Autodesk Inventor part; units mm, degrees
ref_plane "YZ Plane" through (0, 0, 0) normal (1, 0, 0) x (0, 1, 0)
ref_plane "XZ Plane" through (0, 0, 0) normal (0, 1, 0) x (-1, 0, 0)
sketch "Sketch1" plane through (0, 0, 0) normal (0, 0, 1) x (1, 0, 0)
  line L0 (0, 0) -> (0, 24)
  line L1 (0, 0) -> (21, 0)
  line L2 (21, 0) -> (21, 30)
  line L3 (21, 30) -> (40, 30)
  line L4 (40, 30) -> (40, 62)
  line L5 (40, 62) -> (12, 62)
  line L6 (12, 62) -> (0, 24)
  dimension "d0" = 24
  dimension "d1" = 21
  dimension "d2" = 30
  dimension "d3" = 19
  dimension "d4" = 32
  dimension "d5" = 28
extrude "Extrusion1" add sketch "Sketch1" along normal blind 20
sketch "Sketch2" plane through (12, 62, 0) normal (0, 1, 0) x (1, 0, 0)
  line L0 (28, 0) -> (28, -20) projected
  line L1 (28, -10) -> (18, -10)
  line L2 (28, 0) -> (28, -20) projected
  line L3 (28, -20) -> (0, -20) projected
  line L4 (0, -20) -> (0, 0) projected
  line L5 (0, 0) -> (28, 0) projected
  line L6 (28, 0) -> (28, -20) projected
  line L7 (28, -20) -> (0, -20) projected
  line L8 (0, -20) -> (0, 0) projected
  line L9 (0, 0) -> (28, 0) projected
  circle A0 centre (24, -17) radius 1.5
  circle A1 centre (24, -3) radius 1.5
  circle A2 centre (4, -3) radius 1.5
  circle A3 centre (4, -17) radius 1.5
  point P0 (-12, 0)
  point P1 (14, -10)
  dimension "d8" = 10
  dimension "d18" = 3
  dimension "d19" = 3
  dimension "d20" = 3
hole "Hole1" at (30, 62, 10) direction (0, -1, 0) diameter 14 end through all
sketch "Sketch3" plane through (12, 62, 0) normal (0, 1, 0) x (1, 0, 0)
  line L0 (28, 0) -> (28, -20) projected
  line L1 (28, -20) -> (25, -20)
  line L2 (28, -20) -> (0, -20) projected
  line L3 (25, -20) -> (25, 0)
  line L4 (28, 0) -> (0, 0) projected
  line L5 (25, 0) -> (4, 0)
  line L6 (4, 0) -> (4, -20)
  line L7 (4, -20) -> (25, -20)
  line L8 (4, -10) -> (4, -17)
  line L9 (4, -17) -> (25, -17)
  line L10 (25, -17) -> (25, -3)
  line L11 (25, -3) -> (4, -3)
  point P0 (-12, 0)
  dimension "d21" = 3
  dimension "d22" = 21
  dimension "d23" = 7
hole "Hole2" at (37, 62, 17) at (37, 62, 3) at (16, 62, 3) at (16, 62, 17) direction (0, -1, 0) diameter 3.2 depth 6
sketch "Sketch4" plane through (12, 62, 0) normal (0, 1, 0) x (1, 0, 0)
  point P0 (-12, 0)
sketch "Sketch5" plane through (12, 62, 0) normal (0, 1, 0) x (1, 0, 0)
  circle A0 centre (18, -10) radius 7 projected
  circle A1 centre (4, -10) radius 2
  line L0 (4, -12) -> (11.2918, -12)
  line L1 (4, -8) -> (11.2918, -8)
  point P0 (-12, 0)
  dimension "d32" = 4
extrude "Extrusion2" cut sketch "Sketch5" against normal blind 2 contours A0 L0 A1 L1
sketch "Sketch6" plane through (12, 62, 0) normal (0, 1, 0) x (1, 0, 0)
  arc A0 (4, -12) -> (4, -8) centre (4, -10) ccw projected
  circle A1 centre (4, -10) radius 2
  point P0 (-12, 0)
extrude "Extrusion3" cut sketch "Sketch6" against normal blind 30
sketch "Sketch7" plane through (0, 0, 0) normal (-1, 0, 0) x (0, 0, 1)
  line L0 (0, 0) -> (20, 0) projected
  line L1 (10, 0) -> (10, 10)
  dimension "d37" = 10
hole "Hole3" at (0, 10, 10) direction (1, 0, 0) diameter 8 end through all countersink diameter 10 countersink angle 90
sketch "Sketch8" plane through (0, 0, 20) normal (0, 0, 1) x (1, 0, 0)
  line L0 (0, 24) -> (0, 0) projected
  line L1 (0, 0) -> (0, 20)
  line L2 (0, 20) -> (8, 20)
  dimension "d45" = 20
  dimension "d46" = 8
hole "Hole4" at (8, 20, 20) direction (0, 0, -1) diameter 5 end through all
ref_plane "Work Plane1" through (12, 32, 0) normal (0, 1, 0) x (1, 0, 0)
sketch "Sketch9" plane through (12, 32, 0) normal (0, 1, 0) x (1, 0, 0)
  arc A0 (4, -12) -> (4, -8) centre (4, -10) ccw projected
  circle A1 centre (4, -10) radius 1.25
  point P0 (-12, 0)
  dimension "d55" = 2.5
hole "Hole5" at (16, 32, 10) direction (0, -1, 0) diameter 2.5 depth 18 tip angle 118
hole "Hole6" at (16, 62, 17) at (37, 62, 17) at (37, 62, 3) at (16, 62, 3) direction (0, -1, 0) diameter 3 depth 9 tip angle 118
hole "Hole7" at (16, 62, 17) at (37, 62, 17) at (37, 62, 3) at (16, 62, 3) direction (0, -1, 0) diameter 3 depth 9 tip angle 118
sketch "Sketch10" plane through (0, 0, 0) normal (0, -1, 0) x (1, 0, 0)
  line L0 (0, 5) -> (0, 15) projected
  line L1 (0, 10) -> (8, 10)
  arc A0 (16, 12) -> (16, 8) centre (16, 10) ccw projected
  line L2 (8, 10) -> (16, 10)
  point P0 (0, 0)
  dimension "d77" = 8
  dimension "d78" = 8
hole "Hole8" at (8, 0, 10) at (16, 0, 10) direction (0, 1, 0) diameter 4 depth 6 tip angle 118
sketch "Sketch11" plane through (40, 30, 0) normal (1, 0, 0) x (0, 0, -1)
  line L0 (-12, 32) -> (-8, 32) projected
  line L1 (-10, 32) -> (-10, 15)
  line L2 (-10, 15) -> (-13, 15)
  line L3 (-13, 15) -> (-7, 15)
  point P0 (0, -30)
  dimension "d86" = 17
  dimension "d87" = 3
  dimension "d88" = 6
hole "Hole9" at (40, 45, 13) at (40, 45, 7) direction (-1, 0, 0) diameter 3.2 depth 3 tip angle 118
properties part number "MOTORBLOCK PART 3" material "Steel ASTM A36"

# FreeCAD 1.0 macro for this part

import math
import FreeCAD as App
import Part
import Sketcher
from FreeCAD import Vector
Q = App.Units.Quantity

doc = App.newDocument("Part")
body = doc.addObject("PartDesign::Body", "Body")

sketch1 = doc.addObject("Sketcher::SketchObject", "Sketch")
body.addObject(sketch1)
sketch1.AttachmentSupport = (doc.XY_Plane, [""])
sketch1.MapMode = "FlatFace"
sketch1.addGeometry(Part.LineSegment(Vector(0, 24, 0), Vector(0, 0, 0)), False)
sketch1.addGeometry(Part.LineSegment(Vector(0, 0, 0), Vector(21, 0, 0)), False)
sketch1.addGeometry(Part.LineSegment(Vector(21, 0, 0), Vector(21, 30, 0)), False)
sketch1.addGeometry(Part.LineSegment(Vector(21, 30, 0), Vector(40, 30, 0)), False)
sketch1.addGeometry(Part.LineSegment(Vector(40, 30, 0), Vector(40, 62, 0)), False)
sketch1.addGeometry(Part.LineSegment(Vector(40, 62, 0), Vector(12, 62, 0)), False)
sketch1.addGeometry(Part.LineSegment(Vector(12, 62, 0), Vector(0, 24, 0)), False)
sketch1.addConstraint(Sketcher.Constraint("Coincident", 0, 2, 1, 1))
sketch1.addConstraint(Sketcher.Constraint("Coincident", 1, 2, 2, 1))
sketch1.addConstraint(Sketcher.Constraint("Coincident", 2, 2, 3, 1))
sketch1.addConstraint(Sketcher.Constraint("Coincident", 3, 2, 4, 1))
sketch1.addConstraint(Sketcher.Constraint("Coincident", 4, 2, 5, 1))
sketch1.addConstraint(Sketcher.Constraint("Coincident", 5, 2, 6, 1))
sketch1.addConstraint(Sketcher.Constraint("Coincident", 6, 2, 0, 1))
sketch1.addConstraint(Sketcher.Constraint("Vertical", 0))
sketch1.addConstraint(Sketcher.Constraint("Horizontal", 1))
sketch1.addConstraint(Sketcher.Constraint("Vertical", 2))
sketch1.addConstraint(Sketcher.Constraint("Horizontal", 3))
sketch1.addConstraint(Sketcher.Constraint("Vertical", 4))
sketch1.addConstraint(Sketcher.Constraint("Horizontal", 5))
sketch1.addConstraint(Sketcher.Constraint("Coincident", 0, 2, -1, 1))
sketch1.addConstraint(Sketcher.Constraint("DistanceX", 1, 1, 1, 2, Q("21 mm")))
sketch1.addConstraint(Sketcher.Constraint("DistanceX", 3, 1, 3, 2, Q("19 mm")))
sketch1.addConstraint(Sketcher.Constraint("DistanceX", 5, 2, 5, 1, Q("28 mm")))
sketch1.addConstraint(Sketcher.Constraint("DistanceY", 0, 2, 0, 1, Q("24 mm")))
sketch1.addConstraint(Sketcher.Constraint("DistanceY", 2, 1, 2, 2, Q("30 mm")))
sketch1.addConstraint(Sketcher.Constraint("DistanceY", 4, 1, 4, 2, Q("32 mm")))
pad1 = doc.addObject("PartDesign::Pad", "Pad")
body.addObject(pad1)
pad1.Profile = sketch1
pad1.Length = 20

sketch2 = doc.addObject("Sketcher::SketchObject", "Sketch001")
body.addObject(sketch2)
sketch2.AttachmentSupport = (doc.XZ_Plane, [""])
sketch2.MapMode = "FlatFace"
sketch2.AttachmentOffset = App.Placement(Vector(0, 0, -62), App.Rotation())
sketch2.addGeometry(Part.Circle(Vector(30, 10, 0), Vector(0, 0, 1), 7), False)
sketch2.addConstraint(Sketcher.Constraint("Diameter", 0, Q("14 mm")))
sketch2.addConstraint(Sketcher.Constraint("DistanceX", -1, 1, 0, 3, Q("30 mm")))
sketch2.addConstraint(Sketcher.Constraint("DistanceY", -1, 1, 0, 3, Q("10 mm")))
doc.recompute()
hole = doc.addObject("PartDesign::Hole", "Hole")
body.addObject(hole)
hole.Profile = sketch2
hole.ThreadType = "None"
hole.Diameter = 14
hole.DepthType = "ThroughAll"
hole.Reversed = True

sketch3 = doc.addObject("Sketcher::SketchObject", "Sketch002")
body.addObject(sketch3)
sketch3.AttachmentSupport = (doc.XZ_Plane, [""])
sketch3.MapMode = "FlatFace"
sketch3.AttachmentOffset = App.Placement(Vector(0, 0, -62), App.Rotation())
sketch3.addGeometry(Part.Circle(Vector(37, 17, 0), Vector(0, 0, 1), 1.6), False)
sketch3.addGeometry(Part.Circle(Vector(37, 3, 0), Vector(0, 0, 1), 1.6), False)
sketch3.addGeometry(Part.Circle(Vector(16, 3, 0), Vector(0, 0, 1), 1.6), False)
sketch3.addGeometry(Part.Circle(Vector(16, 17, 0), Vector(0, 0, 1), 1.6), False)
sketch3.addConstraint(Sketcher.Constraint("Equal", 0, 1))
sketch3.addConstraint(Sketcher.Constraint("Equal", 1, 2))
sketch3.addConstraint(Sketcher.Constraint("Equal", 2, 3))
sketch3.addConstraint(Sketcher.Constraint("Horizontal", 1, 3, 2, 3))
sketch3.addConstraint(Sketcher.Constraint("Horizontal", 0, 3, 3, 3))
sketch3.addConstraint(Sketcher.Constraint("Vertical", 0, 3, 1, 3))
sketch3.addConstraint(Sketcher.Constraint("Vertical", 2, 3, 3, 3))
sketch3.addConstraint(Sketcher.Constraint("Diameter", 0, Q("3.2 mm")))
sketch3.addConstraint(Sketcher.Constraint("DistanceX", -1, 1, 0, 3, Q("37 mm")))
sketch3.addConstraint(Sketcher.Constraint("DistanceY", -1, 1, 0, 3, Q("17 mm")))
sketch3.addConstraint(Sketcher.Constraint("DistanceY", -1, 1, 1, 3, Q("3 mm")))
sketch3.addConstraint(Sketcher.Constraint("DistanceX", -1, 1, 2, 3, Q("16 mm")))
doc.recompute()
hole2 = doc.addObject("PartDesign::Hole", "Hole001")
body.addObject(hole2)
hole2.Profile = sketch3
hole2.ThreadType = "None"
hole2.Diameter = 3.2
hole2.DepthType = "Dimension"
hole2.Depth = 6
hole2.DrillPoint = "Flat"
hole2.Reversed = True

sketch4 = doc.addObject("Sketcher::SketchObject", "Sketch003")
body.addObject(sketch4)
sketch4.AttachmentSupport = (doc.XZ_Plane, [""])
sketch4.MapMode = "FlatFace"
sketch4.AttachmentOffset = App.Placement(Vector(0, 0, -62), App.Rotation())
sketch4.addGeometry(Part.ArcOfCircle(Part.Circle(Vector(30, 10, 0), Vector(0, 0, 1), 7), math.radians(163), math.radians(197)), False)
sketch4.addGeometry(Part.LineSegment(Vector(23.3, 8, 0), Vector(16, 8, 0)), False)
sketch4.addGeometry(Part.ArcOfCircle(Part.Circle(Vector(16, 10, 0), Vector(0, 0, 1), 2), math.radians(-90), math.radians(90)), False)
sketch4.addGeometry(Part.LineSegment(Vector(16, 12, 0), Vector(23.3, 12, 0)), False)
sketch4.addConstraint(Sketcher.Constraint("Coincident", 0, 2, 1, 1))
sketch4.addConstraint(Sketcher.Constraint("Tangent", 1, 2, 2, 1))
sketch4.addConstraint(Sketcher.Constraint("Tangent", 2, 2, 3, 1))
sketch4.addConstraint(Sketcher.Constraint("Coincident", 3, 2, 0, 1))
sketch4.addConstraint(Sketcher.Constraint("Horizontal", 1))
sketch4.addConstraint(Sketcher.Constraint("Horizontal", 3))
sketch4.addConstraint(Sketcher.Constraint("Horizontal", 0, 3, 2, 3))
sketch4.addConstraint(Sketcher.Constraint("Radius", 2, Q("2 mm")))
sketch4.addConstraint(Sketcher.Constraint("Radius", 0, Q("7 mm")))
sketch4.addConstraint(Sketcher.Constraint("DistanceX", -1, 1, 0, 3, Q("30 mm")))
sketch4.addConstraint(Sketcher.Constraint("DistanceY", -1, 1, 0, 3, Q("10 mm")))
sketch4.addConstraint(Sketcher.Constraint("DistanceX", -1, 1, 2, 3, Q("16 mm")))
pocket1 = doc.addObject("PartDesign::Pocket", "Pocket")
body.addObject(pocket1)
pocket1.Profile = sketch4
pocket1.Length = 2
pocket1.Reversed = True

sketch5 = doc.addObject("Sketcher::SketchObject", "Sketch004")
body.addObject(sketch5)
sketch5.AttachmentSupport = (doc.XZ_Plane, [""])
sketch5.MapMode = "FlatFace"
sketch5.AttachmentOffset = App.Placement(Vector(0, 0, -62), App.Rotation())
sketch5.addGeometry(Part.Circle(Vector(16, 10, 0), Vector(0, 0, 1), 2), False)
sketch5.addConstraint(Sketcher.Constraint("Diameter", 0, Q("4 mm")))
sketch5.addConstraint(Sketcher.Constraint("DistanceX", -1, 1, 0, 3, Q("16 mm")))
sketch5.addConstraint(Sketcher.Constraint("DistanceY", -1, 1, 0, 3, Q("10 mm")))
pocket2 = doc.addObject("PartDesign::Pocket", "Pocket001")
body.addObject(pocket2)
pocket2.Profile = sketch5
pocket2.Length = 30
pocket2.Reversed = True

sketch6 = doc.addObject("Sketcher::SketchObject", "Sketch005")
body.addObject(sketch6)
sketch6.AttachmentSupport = (doc.YZ_Plane, [""])
sketch6.MapMode = "FlatFace"
sketch6.addGeometry(Part.Circle(Vector(10, 10, 0), Vector(0, 0, 1), 4), False)
sketch6.addConstraint(Sketcher.Constraint("Diameter", 0, Q("8 mm")))
sketch6.addConstraint(Sketcher.Constraint("DistanceX", -1, 1, 0, 3, Q("10 mm")))
sketch6.addConstraint(Sketcher.Constraint("DistanceY", -1, 1, 0, 3, Q("10 mm")))
doc.recompute()
hole3 = doc.addObject("PartDesign::Hole", "Hole002")
body.addObject(hole3)
hole3.Profile = sketch6
hole3.ThreadType = "None"
hole3.Diameter = 8
hole3.DepthType = "ThroughAll"
hole3.HoleCutType = "Countersink"
hole3.HoleCutDiameter = 10
hole3.HoleCutCountersinkAngle = 90
hole3.Reversed = True

sketch7 = doc.addObject("Sketcher::SketchObject", "Sketch006")
body.addObject(sketch7)
sketch7.AttachmentSupport = (doc.XY_Plane, [""])
sketch7.MapMode = "FlatFace"
sketch7.AttachmentOffset = App.Placement(Vector(0, 0, 20), App.Rotation())
sketch7.addGeometry(Part.Circle(Vector(8, 20, 0), Vector(0, 0, 1), 2.5), False)
sketch7.addConstraint(Sketcher.Constraint("Diameter", 0, Q("5 mm")))
sketch7.addConstraint(Sketcher.Constraint("DistanceX", -1, 1, 0, 3, Q("8 mm")))
sketch7.addConstraint(Sketcher.Constraint("DistanceY", -1, 1, 0, 3, Q("20 mm")))
doc.recompute()
hole4 = doc.addObject("PartDesign::Hole", "Hole003")
body.addObject(hole4)
hole4.Profile = sketch7
hole4.ThreadType = "None"
hole4.Diameter = 5
hole4.DepthType = "ThroughAll"

sketch8 = doc.addObject("Sketcher::SketchObject", "Sketch007")
body.addObject(sketch8)
sketch8.AttachmentSupport = (doc.XZ_Plane, [""])
sketch8.MapMode = "FlatFace"
sketch8.AttachmentOffset = App.Placement(Vector(0, 0, -32), App.Rotation())
sketch8.addGeometry(Part.Circle(Vector(16, 10, 0), Vector(0, 0, 1), 1.2), False)
sketch8.addConstraint(Sketcher.Constraint("Diameter", 0, Q("2.5 mm")))
sketch8.addConstraint(Sketcher.Constraint("DistanceX", -1, 1, 0, 3, Q("16 mm")))
sketch8.addConstraint(Sketcher.Constraint("DistanceY", -1, 1, 0, 3, Q("10 mm")))
doc.recompute()
hole5 = doc.addObject("PartDesign::Hole", "Hole004")
body.addObject(hole5)
hole5.Profile = sketch8
hole5.ThreadType = "None"
hole5.Diameter = 2.5
hole5.DepthType = "Dimension"
hole5.Depth = 18
hole5.DrillPoint = "Angled"
hole5.DrillPointAngle = 118
hole5.Reversed = True

sketch9 = doc.addObject("Sketcher::SketchObject", "Sketch008")
body.addObject(sketch9)
sketch9.AttachmentSupport = (doc.XZ_Plane, [""])
sketch9.MapMode = "FlatFace"
sketch9.AttachmentOffset = App.Placement(Vector(0, 0, -62), App.Rotation())
sketch9.addGeometry(Part.Circle(Vector(16, 17, 0), Vector(0, 0, 1), 1.5), False)
sketch9.addGeometry(Part.Circle(Vector(37, 17, 0), Vector(0, 0, 1), 1.5), False)
sketch9.addGeometry(Part.Circle(Vector(37, 3, 0), Vector(0, 0, 1), 1.5), False)
sketch9.addGeometry(Part.Circle(Vector(16, 3, 0), Vector(0, 0, 1), 1.5), False)
sketch9.addConstraint(Sketcher.Constraint("Equal", 0, 1))
sketch9.addConstraint(Sketcher.Constraint("Equal", 1, 2))
sketch9.addConstraint(Sketcher.Constraint("Equal", 2, 3))
sketch9.addConstraint(Sketcher.Constraint("Horizontal", 0, 3, 1, 3))
sketch9.addConstraint(Sketcher.Constraint("Horizontal", 2, 3, 3, 3))
sketch9.addConstraint(Sketcher.Constraint("Vertical", 1, 3, 2, 3))
sketch9.addConstraint(Sketcher.Constraint("Vertical", 0, 3, 3, 3))
sketch9.addConstraint(Sketcher.Constraint("Diameter", 0, Q("3 mm")))
sketch9.addConstraint(Sketcher.Constraint("DistanceX", -1, 1, 0, 3, Q("16 mm")))
sketch9.addConstraint(Sketcher.Constraint("DistanceY", -1, 1, 0, 3, Q("17 mm")))
sketch9.addConstraint(Sketcher.Constraint("DistanceX", -1, 1, 1, 3, Q("37 mm")))
sketch9.addConstraint(Sketcher.Constraint("DistanceY", -1, 1, 2, 3, Q("3 mm")))
doc.recompute()
hole6 = doc.addObject("PartDesign::Hole", "Hole005")
body.addObject(hole6)
hole6.Profile = sketch9
hole6.ThreadType = "None"
hole6.Diameter = 3
hole6.DepthType = "Dimension"
hole6.Depth = 9
hole6.DrillPoint = "Angled"
hole6.DrillPointAngle = 118
hole6.Reversed = True

sketch10 = doc.addObject("Sketcher::SketchObject", "Sketch009")
body.addObject(sketch10)
sketch10.AttachmentSupport = (doc.XZ_Plane, [""])
sketch10.MapMode = "FlatFace"
sketch10.AttachmentOffset = App.Placement(Vector(0, 0, -62), App.Rotation())
sketch10.addGeometry(Part.Circle(Vector(16, 17, 0), Vector(0, 0, 1), 1.5), False)
sketch10.addGeometry(Part.Circle(Vector(37, 17, 0), Vector(0, 0, 1), 1.5), False)
sketch10.addGeometry(Part.Circle(Vector(37, 3, 0), Vector(0, 0, 1), 1.5), False)
sketch10.addGeometry(Part.Circle(Vector(16, 3, 0), Vector(0, 0, 1), 1.5), False)
sketch10.addConstraint(Sketcher.Constraint("Equal", 0, 1))
sketch10.addConstraint(Sketcher.Constraint("Equal", 1, 2))
sketch10.addConstraint(Sketcher.Constraint("Equal", 2, 3))
sketch10.addConstraint(Sketcher.Constraint("Horizontal", 0, 3, 1, 3))
sketch10.addConstraint(Sketcher.Constraint("Horizontal", 2, 3, 3, 3))
sketch10.addConstraint(Sketcher.Constraint("Vertical", 1, 3, 2, 3))
sketch10.addConstraint(Sketcher.Constraint("Vertical", 0, 3, 3, 3))
sketch10.addConstraint(Sketcher.Constraint("Diameter", 0, Q("3 mm")))
sketch10.addConstraint(Sketcher.Constraint("DistanceX", -1, 1, 0, 3, Q("16 mm")))
sketch10.addConstraint(Sketcher.Constraint("DistanceY", -1, 1, 0, 3, Q("17 mm")))
sketch10.addConstraint(Sketcher.Constraint("DistanceX", -1, 1, 1, 3, Q("37 mm")))
sketch10.addConstraint(Sketcher.Constraint("DistanceY", -1, 1, 2, 3, Q("3 mm")))
doc.recompute()
hole7 = doc.addObject("PartDesign::Hole", "Hole006")
body.addObject(hole7)
hole7.Profile = sketch10
hole7.ThreadType = "None"
hole7.Diameter = 3
hole7.DepthType = "Dimension"
hole7.Depth = 9
hole7.DrillPoint = "Angled"
hole7.DrillPointAngle = 118
hole7.Reversed = True

sketch11 = doc.addObject("Sketcher::SketchObject", "Sketch010")
body.addObject(sketch11)
sketch11.AttachmentSupport = (doc.XZ_Plane, [""])
sketch11.MapMode = "FlatFace"
sketch11.addGeometry(Part.Circle(Vector(8, 10, 0), Vector(0, 0, 1), 2), False)
sketch11.addGeometry(Part.Circle(Vector(16, 10, 0), Vector(0, 0, 1), 2), False)
sketch11.addConstraint(Sketcher.Constraint("Equal", 0, 1))
sketch11.addConstraint(Sketcher.Constraint("Horizontal", 0, 3, 1, 3))
sketch11.addConstraint(Sketcher.Constraint("Diameter", 0, Q("4 mm")))
sketch11.addConstraint(Sketcher.Constraint("DistanceX", -1, 1, 0, 3, Q("8 mm")))
sketch11.addConstraint(Sketcher.Constraint("DistanceY", -1, 1, 0, 3, Q("10 mm")))
sketch11.addConstraint(Sketcher.Constraint("DistanceX", -1, 1, 1, 3, Q("16 mm")))
doc.recompute()
hole8 = doc.addObject("PartDesign::Hole", "Hole007")
body.addObject(hole8)
hole8.Profile = sketch11
hole8.ThreadType = "None"
hole8.Diameter = 4
hole8.DepthType = "Dimension"
hole8.Depth = 6
hole8.DrillPoint = "Angled"
hole8.DrillPointAngle = 118

sketch12 = doc.addObject("Sketcher::SketchObject", "Sketch011")
body.addObject(sketch12)
sketch12.AttachmentSupport = (doc.YZ_Plane, [""])
sketch12.MapMode = "FlatFace"
sketch12.AttachmentOffset = App.Placement(Vector(0, 0, 40), App.Rotation())
sketch12.addGeometry(Part.Circle(Vector(45, 13, 0), Vector(0, 0, 1), 1.6), False)
sketch12.addGeometry(Part.Circle(Vector(45, 7, 0), Vector(0, 0, 1), 1.6), False)
sketch12.addConstraint(Sketcher.Constraint("Equal", 0, 1))
sketch12.addConstraint(Sketcher.Constraint("Vertical", 0, 3, 1, 3))
sketch12.addConstraint(Sketcher.Constraint("Diameter", 0, Q("3.2 mm")))
sketch12.addConstraint(Sketcher.Constraint("DistanceX", -1, 1, 0, 3, Q("45 mm")))
sketch12.addConstraint(Sketcher.Constraint("DistanceY", -1, 1, 0, 3, Q("13 mm")))
sketch12.addConstraint(Sketcher.Constraint("DistanceY", -1, 1, 1, 3, Q("7 mm")))
doc.recompute()
hole9 = doc.addObject("PartDesign::Hole", "Hole008")
body.addObject(hole9)
hole9.Profile = sketch12
hole9.ThreadType = "None"
hole9.Diameter = 3.2
hole9.DepthType = "Dimension"
hole9.Depth = 3
hole9.DrillPoint = "Angled"
hole9.DrillPointAngle = 118

doc.recompute()
